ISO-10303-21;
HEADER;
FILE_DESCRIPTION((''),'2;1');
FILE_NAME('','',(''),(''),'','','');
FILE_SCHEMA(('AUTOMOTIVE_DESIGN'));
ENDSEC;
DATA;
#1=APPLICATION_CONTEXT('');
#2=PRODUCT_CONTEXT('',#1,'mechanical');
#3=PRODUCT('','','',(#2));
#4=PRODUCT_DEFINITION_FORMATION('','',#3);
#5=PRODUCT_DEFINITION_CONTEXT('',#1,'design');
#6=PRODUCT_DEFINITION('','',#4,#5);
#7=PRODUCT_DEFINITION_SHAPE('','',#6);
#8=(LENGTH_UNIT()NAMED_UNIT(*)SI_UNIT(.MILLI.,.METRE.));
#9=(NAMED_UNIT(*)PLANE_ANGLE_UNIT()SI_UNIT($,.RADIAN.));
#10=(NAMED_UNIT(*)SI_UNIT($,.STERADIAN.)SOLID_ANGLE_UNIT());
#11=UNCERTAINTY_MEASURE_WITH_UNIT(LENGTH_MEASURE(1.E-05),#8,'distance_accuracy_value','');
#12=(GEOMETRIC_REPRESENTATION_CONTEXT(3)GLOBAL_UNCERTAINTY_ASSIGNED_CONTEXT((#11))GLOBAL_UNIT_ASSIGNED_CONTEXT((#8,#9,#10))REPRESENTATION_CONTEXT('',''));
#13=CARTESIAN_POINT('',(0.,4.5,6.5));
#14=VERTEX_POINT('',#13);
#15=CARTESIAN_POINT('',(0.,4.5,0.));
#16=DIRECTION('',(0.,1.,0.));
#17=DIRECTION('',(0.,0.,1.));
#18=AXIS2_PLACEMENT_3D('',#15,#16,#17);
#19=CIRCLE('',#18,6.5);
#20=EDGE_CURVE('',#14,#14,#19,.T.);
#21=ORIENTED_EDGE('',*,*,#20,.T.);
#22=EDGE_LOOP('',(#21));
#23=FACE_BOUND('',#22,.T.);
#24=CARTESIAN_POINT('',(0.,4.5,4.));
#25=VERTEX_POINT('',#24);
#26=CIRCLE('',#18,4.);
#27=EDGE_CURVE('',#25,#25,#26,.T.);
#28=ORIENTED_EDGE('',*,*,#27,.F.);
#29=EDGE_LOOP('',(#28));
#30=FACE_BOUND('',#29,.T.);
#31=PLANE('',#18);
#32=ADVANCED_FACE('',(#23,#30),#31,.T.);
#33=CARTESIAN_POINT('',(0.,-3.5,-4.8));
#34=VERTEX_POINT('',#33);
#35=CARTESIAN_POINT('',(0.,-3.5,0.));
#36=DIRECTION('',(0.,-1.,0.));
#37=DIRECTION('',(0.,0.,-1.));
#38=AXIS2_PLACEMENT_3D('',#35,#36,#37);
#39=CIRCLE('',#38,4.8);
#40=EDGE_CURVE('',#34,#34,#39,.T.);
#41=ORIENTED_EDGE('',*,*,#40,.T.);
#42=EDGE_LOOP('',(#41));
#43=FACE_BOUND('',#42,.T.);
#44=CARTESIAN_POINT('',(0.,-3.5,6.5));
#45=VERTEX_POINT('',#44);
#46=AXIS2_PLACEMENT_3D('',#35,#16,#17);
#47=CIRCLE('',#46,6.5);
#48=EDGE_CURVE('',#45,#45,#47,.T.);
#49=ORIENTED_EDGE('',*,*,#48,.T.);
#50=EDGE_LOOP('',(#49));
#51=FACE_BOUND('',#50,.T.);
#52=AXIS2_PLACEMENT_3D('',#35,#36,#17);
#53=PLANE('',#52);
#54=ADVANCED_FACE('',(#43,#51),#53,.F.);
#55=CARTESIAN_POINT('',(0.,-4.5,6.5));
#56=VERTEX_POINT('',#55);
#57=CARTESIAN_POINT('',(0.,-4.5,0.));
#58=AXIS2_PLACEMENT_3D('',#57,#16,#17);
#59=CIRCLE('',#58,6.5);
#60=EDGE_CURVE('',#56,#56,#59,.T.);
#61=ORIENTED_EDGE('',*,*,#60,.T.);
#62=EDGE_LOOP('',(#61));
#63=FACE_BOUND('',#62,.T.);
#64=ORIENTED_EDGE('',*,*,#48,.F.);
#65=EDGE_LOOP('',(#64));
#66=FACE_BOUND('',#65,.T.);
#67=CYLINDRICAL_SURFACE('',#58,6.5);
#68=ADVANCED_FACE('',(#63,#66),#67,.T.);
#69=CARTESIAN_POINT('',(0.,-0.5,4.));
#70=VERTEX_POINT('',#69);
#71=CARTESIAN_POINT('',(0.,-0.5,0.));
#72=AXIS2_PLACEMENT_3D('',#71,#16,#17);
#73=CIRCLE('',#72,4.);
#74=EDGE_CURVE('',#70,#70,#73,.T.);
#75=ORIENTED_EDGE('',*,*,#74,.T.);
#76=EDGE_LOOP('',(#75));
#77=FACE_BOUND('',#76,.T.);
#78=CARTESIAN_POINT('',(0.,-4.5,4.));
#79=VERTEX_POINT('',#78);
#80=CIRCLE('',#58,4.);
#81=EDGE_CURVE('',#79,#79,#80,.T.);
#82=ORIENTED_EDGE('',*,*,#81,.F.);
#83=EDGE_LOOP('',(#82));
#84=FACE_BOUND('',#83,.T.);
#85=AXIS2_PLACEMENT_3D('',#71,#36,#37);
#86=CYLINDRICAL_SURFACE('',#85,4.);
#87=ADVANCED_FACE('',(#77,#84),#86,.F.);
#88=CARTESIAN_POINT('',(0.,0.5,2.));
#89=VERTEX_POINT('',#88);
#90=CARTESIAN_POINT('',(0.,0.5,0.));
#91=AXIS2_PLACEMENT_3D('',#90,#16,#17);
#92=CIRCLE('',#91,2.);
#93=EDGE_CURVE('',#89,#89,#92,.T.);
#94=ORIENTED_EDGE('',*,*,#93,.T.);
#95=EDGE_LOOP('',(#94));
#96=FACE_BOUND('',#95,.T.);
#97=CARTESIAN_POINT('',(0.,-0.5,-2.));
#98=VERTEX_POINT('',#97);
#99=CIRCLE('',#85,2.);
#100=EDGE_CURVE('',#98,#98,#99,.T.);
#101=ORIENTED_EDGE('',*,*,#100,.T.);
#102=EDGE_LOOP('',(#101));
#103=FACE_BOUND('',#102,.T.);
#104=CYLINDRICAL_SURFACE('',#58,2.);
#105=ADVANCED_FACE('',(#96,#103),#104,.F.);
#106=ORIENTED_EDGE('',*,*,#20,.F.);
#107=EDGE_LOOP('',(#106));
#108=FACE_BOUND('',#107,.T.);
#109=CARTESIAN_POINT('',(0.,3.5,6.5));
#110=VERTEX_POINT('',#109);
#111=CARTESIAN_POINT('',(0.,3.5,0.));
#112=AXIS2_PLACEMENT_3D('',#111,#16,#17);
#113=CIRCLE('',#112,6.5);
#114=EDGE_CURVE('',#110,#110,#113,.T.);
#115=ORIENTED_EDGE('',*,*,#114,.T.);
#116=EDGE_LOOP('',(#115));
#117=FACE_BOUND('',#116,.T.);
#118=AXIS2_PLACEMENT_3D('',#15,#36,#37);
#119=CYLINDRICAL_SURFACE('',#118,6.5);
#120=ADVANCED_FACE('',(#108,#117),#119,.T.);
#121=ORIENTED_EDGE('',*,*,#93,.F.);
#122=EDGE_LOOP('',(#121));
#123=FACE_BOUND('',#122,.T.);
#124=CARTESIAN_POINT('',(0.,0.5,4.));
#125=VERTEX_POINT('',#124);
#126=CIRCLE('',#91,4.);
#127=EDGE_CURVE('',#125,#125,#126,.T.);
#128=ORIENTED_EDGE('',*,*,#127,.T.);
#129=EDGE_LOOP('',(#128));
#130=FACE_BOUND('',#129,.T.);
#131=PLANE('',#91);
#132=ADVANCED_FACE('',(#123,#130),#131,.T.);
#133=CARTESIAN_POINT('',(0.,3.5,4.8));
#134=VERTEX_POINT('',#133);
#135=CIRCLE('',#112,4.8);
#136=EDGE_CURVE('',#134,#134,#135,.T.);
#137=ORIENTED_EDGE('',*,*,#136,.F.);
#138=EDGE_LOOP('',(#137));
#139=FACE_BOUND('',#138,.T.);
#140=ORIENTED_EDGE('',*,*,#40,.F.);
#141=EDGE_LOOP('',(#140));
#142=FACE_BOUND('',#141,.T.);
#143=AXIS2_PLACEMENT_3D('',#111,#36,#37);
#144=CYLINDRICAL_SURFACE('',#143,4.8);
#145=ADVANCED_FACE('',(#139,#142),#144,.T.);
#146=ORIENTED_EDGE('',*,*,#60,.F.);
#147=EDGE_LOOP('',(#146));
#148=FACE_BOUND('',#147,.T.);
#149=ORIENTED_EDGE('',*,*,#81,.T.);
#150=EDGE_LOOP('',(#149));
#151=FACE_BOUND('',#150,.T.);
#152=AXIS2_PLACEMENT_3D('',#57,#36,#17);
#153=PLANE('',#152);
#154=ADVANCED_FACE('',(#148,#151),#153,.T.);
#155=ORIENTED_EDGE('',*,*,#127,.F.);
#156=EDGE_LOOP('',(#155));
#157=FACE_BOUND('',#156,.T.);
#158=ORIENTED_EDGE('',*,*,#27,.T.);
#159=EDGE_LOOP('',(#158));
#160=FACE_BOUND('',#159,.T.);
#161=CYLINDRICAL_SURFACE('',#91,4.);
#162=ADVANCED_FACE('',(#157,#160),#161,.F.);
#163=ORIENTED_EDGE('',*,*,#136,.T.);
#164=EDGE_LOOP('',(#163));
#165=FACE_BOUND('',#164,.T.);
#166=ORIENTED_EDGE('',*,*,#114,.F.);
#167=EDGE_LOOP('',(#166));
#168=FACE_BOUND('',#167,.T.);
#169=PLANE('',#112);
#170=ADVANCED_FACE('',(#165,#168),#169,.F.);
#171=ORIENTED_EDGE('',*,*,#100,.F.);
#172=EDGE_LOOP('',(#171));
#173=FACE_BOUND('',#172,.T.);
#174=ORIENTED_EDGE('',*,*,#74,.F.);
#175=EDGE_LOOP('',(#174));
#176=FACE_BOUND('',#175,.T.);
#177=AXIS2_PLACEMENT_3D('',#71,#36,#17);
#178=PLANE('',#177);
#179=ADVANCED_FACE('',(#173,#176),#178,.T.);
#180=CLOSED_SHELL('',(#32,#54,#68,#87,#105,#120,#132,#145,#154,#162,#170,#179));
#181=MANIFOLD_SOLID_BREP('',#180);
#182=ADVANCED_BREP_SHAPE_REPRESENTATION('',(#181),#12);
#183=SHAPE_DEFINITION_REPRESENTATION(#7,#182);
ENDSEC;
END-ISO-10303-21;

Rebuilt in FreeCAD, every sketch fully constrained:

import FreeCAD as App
import Part
import Sketcher
from FreeCAD import Vector

doc = App.newDocument("Part")
body = doc.addObject("PartDesign::Body", "Body")

sketch1 = body.newObject("Sketcher::SketchObject", "Sketch")
sketch1.AttachmentSupport = (doc.getObject("XZ_Plane"), [""])
sketch1.MapMode = "FlatFace"
sketch1.addGeometry(Part.Circle(Vector(0, 0, 0), Vector(0, 0, 1), 4.8), False)
sketch1.addConstraint([
    Sketcher.Constraint("Coincident", 0, 3, -1, 1),
    Sketcher.Constraint("Diameter", 0, 9.6),
])
pad1 = body.newObject("PartDesign::Pad", "Pad")
pad1.Profile = sketch1
pad1.Length = 7
pad1.Midplane = True

sketch2 = body.newObject("Sketcher::SketchObject", "Sketch001")
sketch2.AttachmentSupport = (doc.getObject("XZ_Plane"), [""])
sketch2.MapMode = "FlatFace"
sketch2.AttachmentOffset = App.Placement(Vector(0, 0, -3.5), App.Rotation())
sketch2.addGeometry(Part.Circle(Vector(0, 0, 0), Vector(0, 0, 1), 6), False)
sketch2.addConstraint([
    Sketcher.Constraint("Coincident", 0, 3, -1, 1),
    Sketcher.Constraint("Diameter", 0, 13.0),
])
pad2 = body.newObject("PartDesign::Pad", "Pad001")
pad2.Profile = sketch2
pad2.Length = 1
pad2.Reversed = True

sketch3 = body.newObject("Sketcher::SketchObject", "Sketch002")
sketch3.AttachmentSupport = (doc.getObject("XZ_Plane"), [""])
sketch3.MapMode = "FlatFace"
sketch3.AttachmentOffset = App.Placement(Vector(0, 0, -4.5), App.Rotation())
sketch3.addGeometry(Part.Circle(Vector(0, 0, 0), Vector(0, 0, 1), 4), False)
sketch3.addConstraint([
    Sketcher.Constraint("Coincident", 0, 3, -1, 1),
    Sketcher.Constraint("Diameter", 0, 8.0),
])
pocket1 = body.newObject("PartDesign::Pocket", "Pocket")
pocket1.Profile = sketch3
pocket1.Length = 4
pocket1.Reversed = True
doc.recompute()

mirrored = body.newObject("PartDesign::Mirrored", "Mirrored")
mirrored.Originals = [pad2, pocket1]
mirrored.MirrorPlane = (doc.getObject("XZ_Plane"), [""])
body.Tip = mirrored

sketch4 = body.newObject("Sketcher::SketchObject", "Sketch003")
sketch4.AttachmentSupport = (doc.getObject("XZ_Plane"), [""])
sketch4.MapMode = "FlatFace"
sketch4.AttachmentOffset = App.Placement(Vector(0, 0, -0.5), App.Rotation())
sketch4.addGeometry(Part.Circle(Vector(0, 0, 0), Vector(0, 0, 1), 2), False)
sketch4.addConstraint([
    Sketcher.Constraint("Coincident", 0, 3, -1, 1),
    Sketcher.Constraint("Diameter", 0, 4.0),
])
pocket2 = body.newObject("PartDesign::Pocket", "Pocket001")
pocket2.Profile = sketch4
pocket2.Type = "ThroughAll"
pocket2.Reversed = True

doc.recompute()
